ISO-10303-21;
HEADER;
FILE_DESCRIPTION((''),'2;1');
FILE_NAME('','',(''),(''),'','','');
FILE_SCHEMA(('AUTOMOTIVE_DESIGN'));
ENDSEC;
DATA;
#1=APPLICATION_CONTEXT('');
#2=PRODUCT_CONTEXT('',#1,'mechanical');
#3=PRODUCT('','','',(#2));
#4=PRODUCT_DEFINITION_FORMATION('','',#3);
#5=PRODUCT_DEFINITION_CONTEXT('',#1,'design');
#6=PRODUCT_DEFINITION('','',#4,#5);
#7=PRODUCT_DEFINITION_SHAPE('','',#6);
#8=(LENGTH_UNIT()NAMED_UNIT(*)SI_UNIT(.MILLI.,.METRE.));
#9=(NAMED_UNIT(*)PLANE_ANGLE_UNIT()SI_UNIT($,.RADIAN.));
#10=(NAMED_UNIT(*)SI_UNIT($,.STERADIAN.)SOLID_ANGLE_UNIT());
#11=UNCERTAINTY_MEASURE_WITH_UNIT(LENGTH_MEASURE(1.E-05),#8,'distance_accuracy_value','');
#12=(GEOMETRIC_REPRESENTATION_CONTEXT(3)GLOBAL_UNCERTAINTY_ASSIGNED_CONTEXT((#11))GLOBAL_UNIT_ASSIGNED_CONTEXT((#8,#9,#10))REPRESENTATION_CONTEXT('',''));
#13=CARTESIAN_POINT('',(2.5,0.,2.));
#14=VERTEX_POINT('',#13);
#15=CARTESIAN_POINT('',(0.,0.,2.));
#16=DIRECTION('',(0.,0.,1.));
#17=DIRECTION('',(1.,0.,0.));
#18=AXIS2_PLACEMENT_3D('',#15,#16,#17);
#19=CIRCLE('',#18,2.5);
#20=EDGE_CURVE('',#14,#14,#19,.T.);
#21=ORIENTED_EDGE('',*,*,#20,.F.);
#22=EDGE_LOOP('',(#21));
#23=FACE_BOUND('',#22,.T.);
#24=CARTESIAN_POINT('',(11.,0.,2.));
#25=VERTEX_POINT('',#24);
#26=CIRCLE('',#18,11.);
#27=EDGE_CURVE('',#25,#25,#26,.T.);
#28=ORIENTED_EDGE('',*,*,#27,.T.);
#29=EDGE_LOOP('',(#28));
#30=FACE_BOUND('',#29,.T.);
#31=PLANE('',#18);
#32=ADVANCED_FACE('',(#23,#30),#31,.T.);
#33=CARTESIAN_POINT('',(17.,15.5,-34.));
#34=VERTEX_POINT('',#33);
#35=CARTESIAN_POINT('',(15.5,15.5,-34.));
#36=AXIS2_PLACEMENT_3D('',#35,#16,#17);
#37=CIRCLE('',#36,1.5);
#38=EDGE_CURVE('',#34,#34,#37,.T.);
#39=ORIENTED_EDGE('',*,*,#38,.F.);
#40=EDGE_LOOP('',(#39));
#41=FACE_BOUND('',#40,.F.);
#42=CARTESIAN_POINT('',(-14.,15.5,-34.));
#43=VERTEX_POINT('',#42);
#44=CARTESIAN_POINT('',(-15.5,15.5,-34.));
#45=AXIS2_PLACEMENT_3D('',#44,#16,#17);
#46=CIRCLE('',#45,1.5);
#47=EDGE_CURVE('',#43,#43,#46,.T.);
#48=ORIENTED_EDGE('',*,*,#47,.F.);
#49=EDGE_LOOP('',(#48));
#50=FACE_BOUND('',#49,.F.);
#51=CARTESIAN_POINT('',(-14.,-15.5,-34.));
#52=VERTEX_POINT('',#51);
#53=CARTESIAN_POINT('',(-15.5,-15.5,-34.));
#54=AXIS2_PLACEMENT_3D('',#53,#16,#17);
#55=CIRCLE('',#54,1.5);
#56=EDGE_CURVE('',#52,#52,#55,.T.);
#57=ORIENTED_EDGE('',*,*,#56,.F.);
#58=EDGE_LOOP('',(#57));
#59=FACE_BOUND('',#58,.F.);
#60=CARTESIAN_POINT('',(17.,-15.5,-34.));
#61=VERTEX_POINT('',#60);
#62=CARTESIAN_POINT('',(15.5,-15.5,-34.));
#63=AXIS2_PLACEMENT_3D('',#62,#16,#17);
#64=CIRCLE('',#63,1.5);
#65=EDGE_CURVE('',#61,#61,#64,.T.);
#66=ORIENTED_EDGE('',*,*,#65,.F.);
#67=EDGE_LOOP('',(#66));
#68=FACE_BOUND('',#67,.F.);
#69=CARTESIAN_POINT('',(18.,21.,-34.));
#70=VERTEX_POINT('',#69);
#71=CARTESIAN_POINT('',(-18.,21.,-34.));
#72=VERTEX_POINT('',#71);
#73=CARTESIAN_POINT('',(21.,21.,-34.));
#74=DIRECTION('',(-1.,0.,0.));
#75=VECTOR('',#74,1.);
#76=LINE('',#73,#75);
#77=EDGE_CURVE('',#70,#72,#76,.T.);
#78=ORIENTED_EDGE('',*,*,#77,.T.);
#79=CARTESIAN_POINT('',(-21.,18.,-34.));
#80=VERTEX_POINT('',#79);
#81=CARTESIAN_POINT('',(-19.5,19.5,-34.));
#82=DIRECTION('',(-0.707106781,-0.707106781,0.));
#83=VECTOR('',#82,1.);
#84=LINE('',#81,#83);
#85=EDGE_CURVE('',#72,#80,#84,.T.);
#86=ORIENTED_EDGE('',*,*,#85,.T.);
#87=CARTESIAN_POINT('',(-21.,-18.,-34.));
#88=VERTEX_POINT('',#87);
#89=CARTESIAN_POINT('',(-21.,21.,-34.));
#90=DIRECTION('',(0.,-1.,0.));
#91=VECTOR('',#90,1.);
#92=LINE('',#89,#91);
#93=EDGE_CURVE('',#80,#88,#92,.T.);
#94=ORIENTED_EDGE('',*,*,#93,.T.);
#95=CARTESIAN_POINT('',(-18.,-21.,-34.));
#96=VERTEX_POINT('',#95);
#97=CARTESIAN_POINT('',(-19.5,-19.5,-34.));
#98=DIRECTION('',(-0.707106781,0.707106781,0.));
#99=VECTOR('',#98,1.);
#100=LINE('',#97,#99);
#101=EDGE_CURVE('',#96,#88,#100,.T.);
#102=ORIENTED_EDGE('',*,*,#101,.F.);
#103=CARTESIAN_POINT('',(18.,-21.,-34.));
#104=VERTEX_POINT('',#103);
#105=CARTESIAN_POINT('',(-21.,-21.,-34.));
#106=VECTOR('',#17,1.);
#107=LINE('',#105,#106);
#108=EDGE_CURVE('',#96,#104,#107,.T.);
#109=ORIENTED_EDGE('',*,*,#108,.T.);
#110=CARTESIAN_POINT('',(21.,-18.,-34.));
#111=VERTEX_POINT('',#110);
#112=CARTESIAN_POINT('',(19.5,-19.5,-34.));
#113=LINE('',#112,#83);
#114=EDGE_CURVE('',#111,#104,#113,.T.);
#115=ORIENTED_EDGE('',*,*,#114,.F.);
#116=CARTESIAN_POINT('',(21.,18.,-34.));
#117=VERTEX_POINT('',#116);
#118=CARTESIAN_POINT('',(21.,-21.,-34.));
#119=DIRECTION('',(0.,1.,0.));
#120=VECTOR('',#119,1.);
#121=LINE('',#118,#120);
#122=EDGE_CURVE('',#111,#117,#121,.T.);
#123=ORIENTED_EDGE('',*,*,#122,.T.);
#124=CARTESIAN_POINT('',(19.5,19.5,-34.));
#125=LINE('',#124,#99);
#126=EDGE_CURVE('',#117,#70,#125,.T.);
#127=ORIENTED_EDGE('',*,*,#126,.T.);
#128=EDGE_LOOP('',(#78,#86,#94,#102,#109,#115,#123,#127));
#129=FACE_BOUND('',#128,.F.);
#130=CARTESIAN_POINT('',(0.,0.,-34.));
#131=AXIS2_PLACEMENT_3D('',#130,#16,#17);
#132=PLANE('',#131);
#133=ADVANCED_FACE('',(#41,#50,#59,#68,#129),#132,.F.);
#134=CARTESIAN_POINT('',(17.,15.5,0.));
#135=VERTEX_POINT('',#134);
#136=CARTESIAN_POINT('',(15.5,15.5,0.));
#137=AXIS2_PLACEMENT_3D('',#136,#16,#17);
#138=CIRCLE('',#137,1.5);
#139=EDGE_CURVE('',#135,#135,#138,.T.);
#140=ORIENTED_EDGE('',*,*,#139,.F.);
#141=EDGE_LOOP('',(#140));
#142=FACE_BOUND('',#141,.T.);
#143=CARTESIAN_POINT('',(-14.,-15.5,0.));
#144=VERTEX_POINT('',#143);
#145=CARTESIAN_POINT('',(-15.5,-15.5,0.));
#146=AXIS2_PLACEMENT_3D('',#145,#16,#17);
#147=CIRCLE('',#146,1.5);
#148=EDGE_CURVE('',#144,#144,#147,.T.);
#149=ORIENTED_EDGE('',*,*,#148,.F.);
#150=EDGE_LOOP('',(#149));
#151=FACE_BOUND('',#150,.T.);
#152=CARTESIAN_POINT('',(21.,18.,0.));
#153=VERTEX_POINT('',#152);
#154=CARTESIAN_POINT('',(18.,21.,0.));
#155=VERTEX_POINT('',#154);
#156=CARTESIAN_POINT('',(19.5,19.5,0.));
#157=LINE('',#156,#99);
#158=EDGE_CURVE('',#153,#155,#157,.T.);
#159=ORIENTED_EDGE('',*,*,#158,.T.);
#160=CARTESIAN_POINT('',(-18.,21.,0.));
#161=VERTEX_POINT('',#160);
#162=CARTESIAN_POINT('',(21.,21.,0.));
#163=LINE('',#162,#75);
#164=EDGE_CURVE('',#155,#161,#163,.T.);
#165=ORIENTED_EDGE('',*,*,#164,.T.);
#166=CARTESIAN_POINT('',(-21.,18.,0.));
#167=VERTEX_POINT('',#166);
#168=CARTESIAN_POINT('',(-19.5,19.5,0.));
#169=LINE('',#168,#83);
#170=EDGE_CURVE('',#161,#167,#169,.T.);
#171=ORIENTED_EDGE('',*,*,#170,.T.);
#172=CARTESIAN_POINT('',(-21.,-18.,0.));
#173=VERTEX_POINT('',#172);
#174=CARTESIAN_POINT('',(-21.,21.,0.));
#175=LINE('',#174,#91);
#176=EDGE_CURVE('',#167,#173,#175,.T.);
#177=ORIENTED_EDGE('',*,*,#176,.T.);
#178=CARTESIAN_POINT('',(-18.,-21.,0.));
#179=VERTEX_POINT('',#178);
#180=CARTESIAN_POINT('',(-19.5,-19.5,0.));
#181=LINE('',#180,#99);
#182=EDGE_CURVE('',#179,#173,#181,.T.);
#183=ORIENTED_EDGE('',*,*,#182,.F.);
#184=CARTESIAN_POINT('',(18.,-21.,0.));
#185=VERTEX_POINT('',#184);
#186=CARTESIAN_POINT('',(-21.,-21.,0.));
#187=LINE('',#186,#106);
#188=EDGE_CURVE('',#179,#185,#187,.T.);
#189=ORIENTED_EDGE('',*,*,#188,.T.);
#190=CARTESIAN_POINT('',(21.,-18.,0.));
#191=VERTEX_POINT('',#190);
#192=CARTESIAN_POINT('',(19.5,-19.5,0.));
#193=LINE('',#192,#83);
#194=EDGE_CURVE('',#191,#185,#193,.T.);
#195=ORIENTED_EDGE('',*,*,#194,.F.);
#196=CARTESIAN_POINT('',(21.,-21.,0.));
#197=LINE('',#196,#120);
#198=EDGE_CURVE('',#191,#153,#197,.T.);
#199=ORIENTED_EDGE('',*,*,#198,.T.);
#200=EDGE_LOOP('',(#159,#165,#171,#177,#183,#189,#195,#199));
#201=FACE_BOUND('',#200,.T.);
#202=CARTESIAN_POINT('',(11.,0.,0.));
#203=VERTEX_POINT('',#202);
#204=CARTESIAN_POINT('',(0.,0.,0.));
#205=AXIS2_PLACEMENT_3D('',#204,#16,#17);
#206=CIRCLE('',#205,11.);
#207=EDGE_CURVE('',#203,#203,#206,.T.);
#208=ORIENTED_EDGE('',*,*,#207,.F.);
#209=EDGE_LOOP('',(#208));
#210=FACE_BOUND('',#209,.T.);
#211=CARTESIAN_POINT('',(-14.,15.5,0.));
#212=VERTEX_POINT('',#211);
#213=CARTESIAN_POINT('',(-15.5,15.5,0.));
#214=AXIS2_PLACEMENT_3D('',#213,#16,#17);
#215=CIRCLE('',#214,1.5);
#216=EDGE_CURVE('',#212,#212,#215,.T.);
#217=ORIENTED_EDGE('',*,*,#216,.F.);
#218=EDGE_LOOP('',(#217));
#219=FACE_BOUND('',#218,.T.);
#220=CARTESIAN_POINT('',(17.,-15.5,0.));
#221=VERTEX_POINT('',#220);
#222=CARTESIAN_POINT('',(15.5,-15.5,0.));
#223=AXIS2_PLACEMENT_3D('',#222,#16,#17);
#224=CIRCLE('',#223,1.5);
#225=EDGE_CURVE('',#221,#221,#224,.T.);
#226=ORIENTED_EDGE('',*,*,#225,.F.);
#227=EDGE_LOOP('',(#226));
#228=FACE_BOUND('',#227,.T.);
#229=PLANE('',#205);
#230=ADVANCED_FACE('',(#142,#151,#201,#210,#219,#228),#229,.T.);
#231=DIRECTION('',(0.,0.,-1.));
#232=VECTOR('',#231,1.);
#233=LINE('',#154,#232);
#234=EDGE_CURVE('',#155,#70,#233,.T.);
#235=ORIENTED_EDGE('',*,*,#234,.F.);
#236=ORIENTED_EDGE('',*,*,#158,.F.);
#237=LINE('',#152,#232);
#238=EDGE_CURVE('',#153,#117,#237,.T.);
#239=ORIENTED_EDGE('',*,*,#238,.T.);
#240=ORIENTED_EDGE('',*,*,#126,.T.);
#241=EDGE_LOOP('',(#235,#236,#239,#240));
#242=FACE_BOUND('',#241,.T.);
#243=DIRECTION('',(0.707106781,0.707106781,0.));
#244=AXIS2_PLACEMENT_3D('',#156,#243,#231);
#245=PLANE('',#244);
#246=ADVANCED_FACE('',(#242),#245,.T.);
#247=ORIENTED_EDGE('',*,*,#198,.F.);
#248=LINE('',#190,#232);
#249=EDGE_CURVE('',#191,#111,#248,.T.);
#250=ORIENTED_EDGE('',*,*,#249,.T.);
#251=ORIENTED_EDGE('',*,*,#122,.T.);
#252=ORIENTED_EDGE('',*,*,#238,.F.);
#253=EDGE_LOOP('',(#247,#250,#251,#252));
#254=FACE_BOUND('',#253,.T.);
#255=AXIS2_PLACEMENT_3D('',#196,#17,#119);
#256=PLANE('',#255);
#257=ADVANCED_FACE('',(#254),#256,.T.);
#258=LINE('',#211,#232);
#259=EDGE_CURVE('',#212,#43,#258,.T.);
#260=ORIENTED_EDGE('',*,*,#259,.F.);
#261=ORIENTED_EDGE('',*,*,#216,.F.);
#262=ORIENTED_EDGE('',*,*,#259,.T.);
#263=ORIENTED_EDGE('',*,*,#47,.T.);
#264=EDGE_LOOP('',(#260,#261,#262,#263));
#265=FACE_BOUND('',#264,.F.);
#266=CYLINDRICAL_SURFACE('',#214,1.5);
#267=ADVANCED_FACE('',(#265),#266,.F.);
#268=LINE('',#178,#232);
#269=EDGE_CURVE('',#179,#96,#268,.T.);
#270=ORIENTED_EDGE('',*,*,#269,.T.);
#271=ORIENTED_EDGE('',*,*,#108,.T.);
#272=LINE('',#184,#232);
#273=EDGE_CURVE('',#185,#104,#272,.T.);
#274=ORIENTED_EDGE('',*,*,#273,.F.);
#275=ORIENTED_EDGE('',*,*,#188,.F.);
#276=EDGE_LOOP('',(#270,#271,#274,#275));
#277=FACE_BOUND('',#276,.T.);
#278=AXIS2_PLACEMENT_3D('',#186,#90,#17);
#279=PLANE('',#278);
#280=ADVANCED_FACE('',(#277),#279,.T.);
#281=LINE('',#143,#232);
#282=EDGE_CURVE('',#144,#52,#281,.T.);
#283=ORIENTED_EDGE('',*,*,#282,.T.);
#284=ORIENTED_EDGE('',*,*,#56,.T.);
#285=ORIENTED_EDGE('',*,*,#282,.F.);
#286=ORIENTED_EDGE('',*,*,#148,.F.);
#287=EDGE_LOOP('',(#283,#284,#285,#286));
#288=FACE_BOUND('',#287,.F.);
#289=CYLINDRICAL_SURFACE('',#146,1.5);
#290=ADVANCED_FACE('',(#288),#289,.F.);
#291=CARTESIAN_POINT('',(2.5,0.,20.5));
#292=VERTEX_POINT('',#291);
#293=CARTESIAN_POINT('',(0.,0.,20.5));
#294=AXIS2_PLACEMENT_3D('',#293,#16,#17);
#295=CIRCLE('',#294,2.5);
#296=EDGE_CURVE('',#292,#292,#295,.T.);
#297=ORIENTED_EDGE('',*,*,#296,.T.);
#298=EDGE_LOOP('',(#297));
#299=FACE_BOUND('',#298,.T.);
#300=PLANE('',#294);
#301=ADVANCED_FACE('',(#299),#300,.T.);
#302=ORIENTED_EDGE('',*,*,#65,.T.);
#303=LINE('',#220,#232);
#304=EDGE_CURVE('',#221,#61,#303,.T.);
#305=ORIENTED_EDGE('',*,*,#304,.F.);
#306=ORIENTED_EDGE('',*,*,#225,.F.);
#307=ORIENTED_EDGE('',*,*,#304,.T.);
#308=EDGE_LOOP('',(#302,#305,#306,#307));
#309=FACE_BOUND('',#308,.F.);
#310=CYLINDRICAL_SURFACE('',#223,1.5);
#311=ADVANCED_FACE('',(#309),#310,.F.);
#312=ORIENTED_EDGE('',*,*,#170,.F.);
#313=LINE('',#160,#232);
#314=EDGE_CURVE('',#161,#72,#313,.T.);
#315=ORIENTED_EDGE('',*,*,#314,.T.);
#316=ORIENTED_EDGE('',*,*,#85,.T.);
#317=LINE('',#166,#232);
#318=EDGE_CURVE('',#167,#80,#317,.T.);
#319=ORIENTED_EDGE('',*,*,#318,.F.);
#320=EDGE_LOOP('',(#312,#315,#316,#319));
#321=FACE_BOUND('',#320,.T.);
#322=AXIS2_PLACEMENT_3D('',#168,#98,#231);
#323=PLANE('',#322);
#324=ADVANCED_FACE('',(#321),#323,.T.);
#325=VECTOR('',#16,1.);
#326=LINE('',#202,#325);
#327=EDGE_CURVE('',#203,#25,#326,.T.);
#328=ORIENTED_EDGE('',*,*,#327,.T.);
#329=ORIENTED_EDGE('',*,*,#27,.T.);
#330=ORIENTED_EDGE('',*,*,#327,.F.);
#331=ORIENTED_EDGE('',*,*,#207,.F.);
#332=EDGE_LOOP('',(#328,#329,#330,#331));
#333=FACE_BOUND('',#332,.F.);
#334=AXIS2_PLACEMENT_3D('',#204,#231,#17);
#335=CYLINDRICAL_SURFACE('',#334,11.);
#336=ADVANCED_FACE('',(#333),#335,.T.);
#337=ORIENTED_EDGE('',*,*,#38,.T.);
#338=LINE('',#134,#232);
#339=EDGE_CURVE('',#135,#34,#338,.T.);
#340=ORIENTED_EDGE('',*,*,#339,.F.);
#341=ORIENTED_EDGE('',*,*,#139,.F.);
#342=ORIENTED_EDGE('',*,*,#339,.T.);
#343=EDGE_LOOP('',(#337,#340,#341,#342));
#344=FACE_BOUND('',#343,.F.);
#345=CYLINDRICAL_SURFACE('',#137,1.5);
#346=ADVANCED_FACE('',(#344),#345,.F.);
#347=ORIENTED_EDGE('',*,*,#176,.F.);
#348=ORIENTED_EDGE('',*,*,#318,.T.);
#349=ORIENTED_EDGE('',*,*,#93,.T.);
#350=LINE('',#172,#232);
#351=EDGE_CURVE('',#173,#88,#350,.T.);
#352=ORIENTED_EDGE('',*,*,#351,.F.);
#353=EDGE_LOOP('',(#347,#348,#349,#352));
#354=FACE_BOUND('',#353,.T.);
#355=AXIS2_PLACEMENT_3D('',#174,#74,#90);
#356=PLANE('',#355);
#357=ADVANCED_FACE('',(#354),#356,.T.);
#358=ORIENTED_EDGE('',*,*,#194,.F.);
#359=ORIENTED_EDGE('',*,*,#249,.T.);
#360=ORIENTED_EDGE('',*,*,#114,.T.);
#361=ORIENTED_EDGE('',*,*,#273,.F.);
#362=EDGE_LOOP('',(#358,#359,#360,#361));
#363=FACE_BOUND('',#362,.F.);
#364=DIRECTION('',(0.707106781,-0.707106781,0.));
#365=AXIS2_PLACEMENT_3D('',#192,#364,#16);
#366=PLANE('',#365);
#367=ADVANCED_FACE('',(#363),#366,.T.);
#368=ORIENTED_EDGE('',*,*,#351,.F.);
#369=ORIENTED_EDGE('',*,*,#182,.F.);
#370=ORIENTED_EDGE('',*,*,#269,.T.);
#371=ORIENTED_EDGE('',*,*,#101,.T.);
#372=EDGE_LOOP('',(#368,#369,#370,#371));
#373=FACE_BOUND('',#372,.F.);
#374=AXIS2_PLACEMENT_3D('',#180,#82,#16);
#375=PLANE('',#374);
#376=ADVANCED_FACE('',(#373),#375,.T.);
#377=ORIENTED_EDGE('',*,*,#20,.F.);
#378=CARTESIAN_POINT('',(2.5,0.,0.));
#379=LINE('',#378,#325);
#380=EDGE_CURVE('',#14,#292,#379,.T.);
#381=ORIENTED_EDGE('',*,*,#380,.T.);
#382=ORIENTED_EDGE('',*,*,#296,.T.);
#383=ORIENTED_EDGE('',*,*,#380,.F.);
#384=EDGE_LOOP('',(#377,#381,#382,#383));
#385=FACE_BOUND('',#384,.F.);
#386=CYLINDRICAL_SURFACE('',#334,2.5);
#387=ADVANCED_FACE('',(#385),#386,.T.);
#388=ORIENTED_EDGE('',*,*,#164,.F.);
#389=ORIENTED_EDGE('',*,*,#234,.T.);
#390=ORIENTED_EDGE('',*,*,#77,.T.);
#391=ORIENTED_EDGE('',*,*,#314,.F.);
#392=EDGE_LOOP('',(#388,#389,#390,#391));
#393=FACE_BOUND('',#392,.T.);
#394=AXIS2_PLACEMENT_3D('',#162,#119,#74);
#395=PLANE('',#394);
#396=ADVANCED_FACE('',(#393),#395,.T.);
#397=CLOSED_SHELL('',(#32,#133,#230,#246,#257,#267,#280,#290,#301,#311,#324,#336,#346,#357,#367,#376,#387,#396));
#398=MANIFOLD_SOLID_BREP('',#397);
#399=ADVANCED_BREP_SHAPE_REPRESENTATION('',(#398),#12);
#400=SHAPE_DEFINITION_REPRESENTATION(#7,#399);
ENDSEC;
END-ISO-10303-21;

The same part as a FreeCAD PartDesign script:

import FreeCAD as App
import Part
import Sketcher


def edges_at(feature, points):
    """Names of the edges that pass closest to the given points."""
    edges = feature.Shape.Edges
    near = lambda p: min(range(len(edges)), key=lambda i: edges[i].distToShape(Part.Vertex(*p))[0])
    return sorted({f"Edge{near(p) + 1}" for p in points})

doc = App.newDocument("Part")
body = doc.addObject("PartDesign::Body", "Body")

# Sketch on XY plane
sketch1 = body.newObject("Sketcher::SketchObject", "Sketch")
sketch1.AttachmentSupport = (doc.getObject("XY_Plane"), [""])
sketch1.MapMode = "FlatFace"
sketch1.addGeometry(Part.LineSegment(App.Vector(21, -21, 0), App.Vector(21, 21, 0)), False)
sketch1.addGeometry(Part.LineSegment(App.Vector(21, 21, 0), App.Vector(-21, 21, 0)), False)
sketch1.addGeometry(Part.LineSegment(App.Vector(-21, 21, 0), App.Vector(-21, -21, 0)), False)
sketch1.addGeometry(Part.LineSegment(App.Vector(-21, -21, 0), App.Vector(21, -21, 0)), False)
sketch1.addGeometry(Part.Circle(App.Vector(-15.5, -15.5, 0), App.Vector(0, 0, 1), 1.5), False)
sketch1.addGeometry(Part.Circle(App.Vector(15.5, -15.5, 0), App.Vector(0, 0, 1), 1.5), False)
sketch1.addGeometry(Part.Circle(App.Vector(-15.5, 15.5, 0), App.Vector(0, 0, 1), 1.5), False)
sketch1.addGeometry(Part.Circle(App.Vector(15.5, 15.5, 0), App.Vector(0, 0, 1), 1.5), False)
sketch1.addConstraint(Sketcher.Constraint("Coincident", 0, 2, 1, 1))
sketch1.addConstraint(Sketcher.Constraint("Coincident", 1, 2, 2, 1))
sketch1.addConstraint(Sketcher.Constraint("Coincident", 2, 2, 3, 1))
sketch1.addConstraint(Sketcher.Constraint("Coincident", 3, 2, 0, 1))
sketch1.addConstraint(Sketcher.Constraint("Vertical", 0))
sketch1.addConstraint(Sketcher.Constraint("Horizontal", 1))
sketch1.addConstraint(Sketcher.Constraint("Vertical", 2))
sketch1.addConstraint(Sketcher.Constraint("Horizontal", 3))
sketch1.addConstraint(Sketcher.Constraint("Equal", 4, 5))
sketch1.addConstraint(Sketcher.Constraint("Equal", 5, 6))
sketch1.addConstraint(Sketcher.Constraint("Equal", 6, 7))
sketch1.addConstraint(Sketcher.Constraint("Symmetric", 5, 3, 6, 3, -1, 1))
sketch1.addConstraint(Sketcher.Constraint("Symmetric", 4, 3, 7, 3, -1, 1))
sketch1.addConstraint(Sketcher.Constraint("Symmetric", 0, 2, 2, 2, -1, 1))
sketch1.addConstraint(Sketcher.Constraint("Symmetric", 4, 3, 5, 3, -2))
sketch1.addConstraint(Sketcher.Constraint("Equal", 3, 0))
sketch1.addConstraint(Sketcher.Constraint("Diameter", 4, 3.0))
sketch1.addConstraint(Sketcher.Constraint("DistanceX", 1, 2, 1, 1, 42.0))
sketch1.addConstraint(Sketcher.Constraint("DistanceX", 4, 3, 5, 3, 31.0))
sketch1.addConstraint(Sketcher.Constraint("DistanceY", 4, 3, 6, 3, 31.0))
pad1 = body.newObject("PartDesign::Pad", "Pad")
pad1.Profile = sketch1
pad1.Length = 34
pad1.Reversed = True

# Sketch on XY plane
sketch2 = body.newObject("Sketcher::SketchObject", "Sketch001")
sketch2.AttachmentSupport = (doc.getObject("XY_Plane"), [""])
sketch2.MapMode = "FlatFace"
sketch2.addGeometry(Part.Circle(App.Vector(0, 0, 0), App.Vector(0, 0, 1), 11), False)
sketch2.addGeometry(Part.Circle(App.Vector(0, 0, 0), App.Vector(0, 0, 1), 2.5), False)
sketch2.addConstraint(Sketcher.Constraint("Coincident", 0, 3, -1, 1))
sketch2.addConstraint(Sketcher.Constraint("Coincident", 1, 3, -1, 1))
sketch2.addConstraint(Sketcher.Constraint("Diameter", 0, 22.0))
sketch2.addConstraint(Sketcher.Constraint("Diameter", 1, 5.0))
pad2 = body.newObject("PartDesign::Pad", "Pad001")
pad2.Profile = sketch2
pad2.Length = 2

# Sketch on XY plane
sketch3 = body.newObject("Sketcher::SketchObject", "Sketch002")
sketch3.AttachmentSupport = (doc.getObject("XY_Plane"), [""])
sketch3.MapMode = "FlatFace"
sketch3.addGeometry(Part.Circle(App.Vector(0, 0, 0), App.Vector(0, 0, 1), 2.5), False)
sketch3.addConstraint(Sketcher.Constraint("Coincident", 0, 3, -1, 1))
sketch3.addConstraint(Sketcher.Constraint("Diameter", 0, 5.0))
pad3 = body.newObject("PartDesign::Pad", "Pad002")
pad3.Profile = sketch3
pad3.Length = 20.5
doc.recompute()

chamfer = body.newObject("PartDesign::Chamfer", "Chamfer")
chamfer.Base = (pad3, edges_at(pad3, [
    (21, -21, -17),
    (-21, -21, -17),
    (-21, 21, -17),
    (21, 21, -17),
]))
chamfer.Size = 3

doc.recompute()
